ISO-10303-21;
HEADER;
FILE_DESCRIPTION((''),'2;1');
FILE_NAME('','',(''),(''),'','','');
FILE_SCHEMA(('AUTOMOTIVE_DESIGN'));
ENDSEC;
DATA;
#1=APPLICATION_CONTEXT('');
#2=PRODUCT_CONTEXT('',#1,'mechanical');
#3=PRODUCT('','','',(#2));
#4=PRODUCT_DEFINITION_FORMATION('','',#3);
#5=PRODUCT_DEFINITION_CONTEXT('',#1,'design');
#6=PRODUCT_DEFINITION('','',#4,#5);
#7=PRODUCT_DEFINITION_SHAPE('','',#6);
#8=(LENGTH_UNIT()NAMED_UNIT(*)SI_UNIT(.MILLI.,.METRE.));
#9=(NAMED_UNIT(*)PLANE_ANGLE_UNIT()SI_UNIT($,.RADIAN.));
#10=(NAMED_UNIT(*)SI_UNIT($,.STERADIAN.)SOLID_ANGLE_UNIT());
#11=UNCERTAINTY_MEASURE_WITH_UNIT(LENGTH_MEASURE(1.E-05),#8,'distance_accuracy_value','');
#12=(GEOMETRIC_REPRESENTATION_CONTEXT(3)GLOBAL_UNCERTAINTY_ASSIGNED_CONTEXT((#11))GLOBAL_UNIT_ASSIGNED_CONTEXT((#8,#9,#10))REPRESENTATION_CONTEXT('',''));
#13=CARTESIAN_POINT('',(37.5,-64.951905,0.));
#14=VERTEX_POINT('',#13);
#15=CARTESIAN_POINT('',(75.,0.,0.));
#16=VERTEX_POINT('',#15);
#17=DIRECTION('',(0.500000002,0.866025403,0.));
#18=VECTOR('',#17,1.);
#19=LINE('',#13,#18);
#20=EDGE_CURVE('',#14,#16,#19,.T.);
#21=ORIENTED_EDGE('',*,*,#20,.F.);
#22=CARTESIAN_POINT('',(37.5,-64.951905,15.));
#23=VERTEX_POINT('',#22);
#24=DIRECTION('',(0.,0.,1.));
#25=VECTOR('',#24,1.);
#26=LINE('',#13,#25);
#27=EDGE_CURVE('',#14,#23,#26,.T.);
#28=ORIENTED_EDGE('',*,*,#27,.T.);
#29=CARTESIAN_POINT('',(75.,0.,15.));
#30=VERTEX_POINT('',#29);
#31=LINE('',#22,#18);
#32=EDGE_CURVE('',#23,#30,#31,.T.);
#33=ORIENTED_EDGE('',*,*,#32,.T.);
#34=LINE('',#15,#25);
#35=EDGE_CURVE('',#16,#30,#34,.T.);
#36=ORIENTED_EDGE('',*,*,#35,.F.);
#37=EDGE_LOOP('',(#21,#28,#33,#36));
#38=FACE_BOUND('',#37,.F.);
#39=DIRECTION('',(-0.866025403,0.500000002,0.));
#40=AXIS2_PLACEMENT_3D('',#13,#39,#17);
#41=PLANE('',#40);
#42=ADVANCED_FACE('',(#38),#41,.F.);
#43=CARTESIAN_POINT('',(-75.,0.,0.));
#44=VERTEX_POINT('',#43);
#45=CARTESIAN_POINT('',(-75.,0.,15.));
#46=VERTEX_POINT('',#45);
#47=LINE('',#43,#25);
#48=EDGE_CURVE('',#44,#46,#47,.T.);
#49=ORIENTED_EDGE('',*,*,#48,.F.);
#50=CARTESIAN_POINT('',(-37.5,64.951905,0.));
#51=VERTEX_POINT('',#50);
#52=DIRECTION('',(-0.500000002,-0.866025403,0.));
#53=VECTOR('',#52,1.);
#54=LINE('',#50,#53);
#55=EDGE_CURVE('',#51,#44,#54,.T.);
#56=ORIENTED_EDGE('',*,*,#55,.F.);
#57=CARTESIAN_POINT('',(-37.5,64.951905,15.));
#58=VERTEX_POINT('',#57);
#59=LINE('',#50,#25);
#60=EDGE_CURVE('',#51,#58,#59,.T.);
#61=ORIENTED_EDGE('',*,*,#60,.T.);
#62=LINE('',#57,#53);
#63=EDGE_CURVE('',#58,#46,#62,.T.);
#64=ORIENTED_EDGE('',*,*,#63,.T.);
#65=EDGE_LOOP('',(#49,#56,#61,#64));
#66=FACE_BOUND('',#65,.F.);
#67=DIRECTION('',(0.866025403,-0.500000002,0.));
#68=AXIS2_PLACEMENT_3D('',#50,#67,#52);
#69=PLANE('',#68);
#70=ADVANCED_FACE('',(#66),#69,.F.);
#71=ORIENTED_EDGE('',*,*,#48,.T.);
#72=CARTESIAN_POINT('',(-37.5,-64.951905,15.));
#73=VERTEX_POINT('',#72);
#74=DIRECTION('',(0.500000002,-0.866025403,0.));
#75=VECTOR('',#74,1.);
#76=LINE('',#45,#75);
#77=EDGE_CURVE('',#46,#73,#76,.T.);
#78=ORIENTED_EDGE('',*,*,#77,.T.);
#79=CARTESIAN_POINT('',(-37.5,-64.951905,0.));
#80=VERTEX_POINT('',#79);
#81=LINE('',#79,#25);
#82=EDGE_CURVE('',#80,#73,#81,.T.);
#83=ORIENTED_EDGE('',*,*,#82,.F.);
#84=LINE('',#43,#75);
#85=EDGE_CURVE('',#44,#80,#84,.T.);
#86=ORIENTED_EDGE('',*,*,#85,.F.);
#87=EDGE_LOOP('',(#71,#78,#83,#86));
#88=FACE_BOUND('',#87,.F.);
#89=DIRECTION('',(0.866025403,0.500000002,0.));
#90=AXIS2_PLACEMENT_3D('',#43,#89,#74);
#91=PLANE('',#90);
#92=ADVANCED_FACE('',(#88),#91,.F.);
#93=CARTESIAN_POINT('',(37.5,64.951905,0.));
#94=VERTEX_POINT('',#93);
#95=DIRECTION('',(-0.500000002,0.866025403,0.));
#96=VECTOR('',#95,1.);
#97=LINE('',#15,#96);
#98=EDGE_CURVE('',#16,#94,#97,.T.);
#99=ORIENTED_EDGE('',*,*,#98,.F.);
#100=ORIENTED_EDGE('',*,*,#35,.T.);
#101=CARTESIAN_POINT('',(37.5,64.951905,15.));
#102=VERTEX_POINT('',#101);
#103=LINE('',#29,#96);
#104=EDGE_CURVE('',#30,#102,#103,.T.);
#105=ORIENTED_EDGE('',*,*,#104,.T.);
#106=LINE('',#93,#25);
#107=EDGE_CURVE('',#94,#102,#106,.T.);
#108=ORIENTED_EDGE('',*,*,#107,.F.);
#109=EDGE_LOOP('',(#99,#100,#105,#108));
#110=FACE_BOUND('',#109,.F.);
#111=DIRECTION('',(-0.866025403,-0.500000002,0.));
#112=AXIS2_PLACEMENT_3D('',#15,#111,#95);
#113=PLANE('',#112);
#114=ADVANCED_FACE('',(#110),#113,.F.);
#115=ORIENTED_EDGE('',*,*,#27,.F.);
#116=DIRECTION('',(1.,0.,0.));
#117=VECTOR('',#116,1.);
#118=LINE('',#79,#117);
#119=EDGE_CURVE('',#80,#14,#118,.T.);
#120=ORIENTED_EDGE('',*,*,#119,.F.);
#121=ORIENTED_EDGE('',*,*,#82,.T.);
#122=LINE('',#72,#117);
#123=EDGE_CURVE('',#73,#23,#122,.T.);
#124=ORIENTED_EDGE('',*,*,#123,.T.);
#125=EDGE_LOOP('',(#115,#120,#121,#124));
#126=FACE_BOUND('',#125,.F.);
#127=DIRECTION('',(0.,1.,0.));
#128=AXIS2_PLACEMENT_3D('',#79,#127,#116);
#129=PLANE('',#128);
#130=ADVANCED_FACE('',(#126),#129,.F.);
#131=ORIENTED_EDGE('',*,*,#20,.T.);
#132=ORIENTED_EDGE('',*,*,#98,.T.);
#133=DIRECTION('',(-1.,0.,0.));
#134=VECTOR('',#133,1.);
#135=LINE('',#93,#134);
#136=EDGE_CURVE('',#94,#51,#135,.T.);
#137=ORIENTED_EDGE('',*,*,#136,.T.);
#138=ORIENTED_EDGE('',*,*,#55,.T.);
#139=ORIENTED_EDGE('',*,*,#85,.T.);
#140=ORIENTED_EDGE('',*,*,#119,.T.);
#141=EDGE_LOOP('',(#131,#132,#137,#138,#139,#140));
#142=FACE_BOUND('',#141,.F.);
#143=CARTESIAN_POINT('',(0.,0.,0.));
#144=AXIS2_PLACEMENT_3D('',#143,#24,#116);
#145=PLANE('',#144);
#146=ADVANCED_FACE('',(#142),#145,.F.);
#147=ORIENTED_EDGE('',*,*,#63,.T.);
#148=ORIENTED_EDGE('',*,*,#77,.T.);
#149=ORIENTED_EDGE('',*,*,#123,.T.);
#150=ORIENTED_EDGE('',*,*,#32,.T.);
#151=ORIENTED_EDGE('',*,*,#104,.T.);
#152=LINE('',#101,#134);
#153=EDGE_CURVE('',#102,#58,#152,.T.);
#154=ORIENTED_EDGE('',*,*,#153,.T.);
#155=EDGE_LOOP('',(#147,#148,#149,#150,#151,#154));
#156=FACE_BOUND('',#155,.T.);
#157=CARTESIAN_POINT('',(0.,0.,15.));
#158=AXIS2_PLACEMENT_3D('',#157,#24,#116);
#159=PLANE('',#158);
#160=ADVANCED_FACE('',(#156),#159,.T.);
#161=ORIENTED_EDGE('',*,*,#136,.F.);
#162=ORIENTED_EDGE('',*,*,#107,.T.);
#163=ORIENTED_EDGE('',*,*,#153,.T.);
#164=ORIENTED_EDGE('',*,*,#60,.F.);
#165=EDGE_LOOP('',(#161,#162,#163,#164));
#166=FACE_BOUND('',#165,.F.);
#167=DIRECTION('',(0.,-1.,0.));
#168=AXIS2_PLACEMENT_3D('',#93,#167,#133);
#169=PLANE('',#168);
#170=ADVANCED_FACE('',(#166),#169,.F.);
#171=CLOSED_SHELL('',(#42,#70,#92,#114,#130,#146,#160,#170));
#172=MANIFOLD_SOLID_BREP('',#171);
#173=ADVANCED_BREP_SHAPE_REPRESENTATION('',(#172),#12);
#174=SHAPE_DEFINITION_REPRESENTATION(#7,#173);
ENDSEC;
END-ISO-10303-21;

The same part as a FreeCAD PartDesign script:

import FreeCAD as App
import Part
import Sketcher
Q = App.Units.Quantity

doc = App.newDocument("Part")
body = doc.addObject("PartDesign::Body", "Body")

# Sketch on XY plane
sketch1 = body.newObject("Sketcher::SketchObject", "Sketch")
sketch1.AttachmentSupport = (doc.getObject("XY_Plane"), [""])
sketch1.MapMode = "FlatFace"
sketch1.addGeometry([
    Part.LineSegment(App.Vector(-37.5, 64.951905, 0), App.Vector(-75, 0, 0)),  # 0
    Part.LineSegment(App.Vector(-75, 0, 0), App.Vector(-37.5, -64.951905, 0)),  # 1
    Part.LineSegment(App.Vector(-37.5, -64.951905, 0), App.Vector(37.5, -64.951905, 0)),  # 2
    Part.LineSegment(App.Vector(37.5, -64.951905, 0), App.Vector(75, 0, 0)),  # 3
    Part.LineSegment(App.Vector(75, 0, 0), App.Vector(37.5, 64.951905, 0)),  # 4
    Part.LineSegment(App.Vector(37.5, 64.951905, 0), App.Vector(-37.5, 64.951905, 0)),  # 5
], False)
sketch1.addConstraint([
    Sketcher.Constraint("Coincident", 0, 2, 1, 1),
    Sketcher.Constraint("Coincident", 1, 2, 2, 1),
    Sketcher.Constraint("Coincident", 2, 2, 3, 1),
    Sketcher.Constraint("Coincident", 3, 2, 4, 1),
    Sketcher.Constraint("Coincident", 4, 2, 5, 1),
    Sketcher.Constraint("Coincident", 5, 2, 0, 1),
    Sketcher.Constraint("Horizontal", 2),
    Sketcher.Constraint("Horizontal", 5),
    Sketcher.Constraint("Symmetric", 0, 2, 3, 2, -1, 1),
    Sketcher.Constraint("Symmetric", 1, 2, 4, 2, -1, 1),
    Sketcher.Constraint("PointOnObject", 0, 2, -1),
    Sketcher.Constraint("Parallel", 0, 3),
    Sketcher.Constraint("Vertical", 2, 2, 4, 2),
    Sketcher.Constraint("DistanceX", 2, 1, 2, 2, Q("75 mm")),
    Sketcher.Constraint("Angle", 0, Q("-120 deg")),
    Sketcher.Constraint("Distance", 0, Q("75 mm")),
])
pad1 = body.newObject("PartDesign::Pad", "Pad")
pad1.Profile = sketch1
pad1.Length = 15

doc.recompute()
